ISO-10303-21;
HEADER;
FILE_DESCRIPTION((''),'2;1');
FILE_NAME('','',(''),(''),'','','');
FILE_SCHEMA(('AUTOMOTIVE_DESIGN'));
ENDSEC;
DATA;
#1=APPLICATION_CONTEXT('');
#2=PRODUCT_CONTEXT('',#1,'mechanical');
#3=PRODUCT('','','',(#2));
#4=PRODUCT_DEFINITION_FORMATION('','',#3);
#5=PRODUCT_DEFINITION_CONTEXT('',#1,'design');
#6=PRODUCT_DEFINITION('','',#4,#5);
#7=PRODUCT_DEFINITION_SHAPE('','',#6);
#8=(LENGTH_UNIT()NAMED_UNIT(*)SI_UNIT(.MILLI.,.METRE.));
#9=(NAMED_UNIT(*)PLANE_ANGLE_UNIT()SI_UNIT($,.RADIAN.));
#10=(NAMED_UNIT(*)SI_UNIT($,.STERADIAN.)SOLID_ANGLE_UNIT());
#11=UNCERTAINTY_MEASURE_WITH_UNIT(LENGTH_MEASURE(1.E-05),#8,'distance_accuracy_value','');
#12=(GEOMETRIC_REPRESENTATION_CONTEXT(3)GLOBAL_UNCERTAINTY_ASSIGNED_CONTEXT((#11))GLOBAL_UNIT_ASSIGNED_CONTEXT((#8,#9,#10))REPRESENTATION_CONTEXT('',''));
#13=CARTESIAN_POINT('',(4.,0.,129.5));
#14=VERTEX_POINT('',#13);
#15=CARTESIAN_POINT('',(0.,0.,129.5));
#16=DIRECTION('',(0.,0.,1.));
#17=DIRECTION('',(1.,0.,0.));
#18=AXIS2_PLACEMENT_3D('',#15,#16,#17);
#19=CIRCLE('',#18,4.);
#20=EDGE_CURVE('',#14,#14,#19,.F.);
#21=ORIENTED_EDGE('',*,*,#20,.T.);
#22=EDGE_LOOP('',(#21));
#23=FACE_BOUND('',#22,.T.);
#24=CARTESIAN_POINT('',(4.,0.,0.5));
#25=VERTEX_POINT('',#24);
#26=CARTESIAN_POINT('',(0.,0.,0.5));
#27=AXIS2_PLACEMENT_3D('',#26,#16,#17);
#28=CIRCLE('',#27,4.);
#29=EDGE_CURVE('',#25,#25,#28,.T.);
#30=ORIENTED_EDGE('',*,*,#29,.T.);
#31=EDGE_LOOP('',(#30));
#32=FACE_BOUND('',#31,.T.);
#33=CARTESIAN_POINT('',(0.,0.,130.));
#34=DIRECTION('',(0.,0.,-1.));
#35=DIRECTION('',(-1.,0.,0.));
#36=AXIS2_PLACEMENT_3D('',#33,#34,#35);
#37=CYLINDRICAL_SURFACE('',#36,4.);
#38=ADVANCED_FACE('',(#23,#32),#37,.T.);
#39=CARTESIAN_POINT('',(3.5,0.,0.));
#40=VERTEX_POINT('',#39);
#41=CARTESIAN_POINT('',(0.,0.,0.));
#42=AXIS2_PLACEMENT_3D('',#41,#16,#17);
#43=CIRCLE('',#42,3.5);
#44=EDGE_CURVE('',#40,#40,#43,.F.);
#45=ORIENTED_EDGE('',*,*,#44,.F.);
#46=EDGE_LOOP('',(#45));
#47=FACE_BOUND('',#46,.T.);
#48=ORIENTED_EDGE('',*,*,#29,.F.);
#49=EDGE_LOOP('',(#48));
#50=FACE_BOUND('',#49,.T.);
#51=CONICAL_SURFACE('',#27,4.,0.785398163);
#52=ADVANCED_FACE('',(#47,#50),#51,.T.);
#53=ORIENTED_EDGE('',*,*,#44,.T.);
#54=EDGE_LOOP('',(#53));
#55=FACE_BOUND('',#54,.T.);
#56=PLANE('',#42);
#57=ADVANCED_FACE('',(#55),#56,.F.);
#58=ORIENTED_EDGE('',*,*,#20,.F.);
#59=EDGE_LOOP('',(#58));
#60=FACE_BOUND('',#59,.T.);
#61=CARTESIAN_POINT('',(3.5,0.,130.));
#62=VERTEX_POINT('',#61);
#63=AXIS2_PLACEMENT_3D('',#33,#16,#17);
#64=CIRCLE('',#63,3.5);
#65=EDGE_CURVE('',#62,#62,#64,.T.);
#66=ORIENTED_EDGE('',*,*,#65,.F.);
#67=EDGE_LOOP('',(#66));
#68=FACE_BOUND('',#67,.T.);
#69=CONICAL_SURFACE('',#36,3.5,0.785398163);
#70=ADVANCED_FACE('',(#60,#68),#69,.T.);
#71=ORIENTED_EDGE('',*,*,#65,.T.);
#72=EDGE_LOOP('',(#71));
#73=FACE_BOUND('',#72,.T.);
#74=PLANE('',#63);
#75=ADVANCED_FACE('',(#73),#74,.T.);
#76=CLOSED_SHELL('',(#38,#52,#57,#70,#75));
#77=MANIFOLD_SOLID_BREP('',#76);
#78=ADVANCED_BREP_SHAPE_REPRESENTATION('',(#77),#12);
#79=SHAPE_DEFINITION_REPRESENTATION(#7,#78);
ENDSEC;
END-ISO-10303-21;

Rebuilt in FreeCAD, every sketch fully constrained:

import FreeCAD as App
import Part
import Sketcher


def edges_at(feature, points):
    """Names of the edges that pass closest to the given points."""
    edges = feature.Shape.Edges
    near = lambda p: min(range(len(edges)), key=lambda i: edges[i].distToShape(Part.Vertex(*p))[0])
    return sorted({f"Edge{near(p) + 1}" for p in points})

doc = App.newDocument("Part")
body = doc.addObject("PartDesign::Body", "Body")

sketch1 = body.newObject("Sketcher::SketchObject", "Sketch")
sketch1.AttachmentSupport = (doc.getObject("XY_Plane"), [""])
sketch1.MapMode = "FlatFace"
sketch1.addGeometry(Part.Circle(App.Vector(0, 0, 0), App.Vector(0, 0, 1), 4), False)
sketch1.addConstraint([
    Sketcher.Constraint("Coincident", 0, 3, -1, 1),
    Sketcher.Constraint("Diameter", 0, 8.0),
])
pad1 = body.newObject("PartDesign::Pad", "Pad")
pad1.Profile = sketch1
pad1.Length = 130
doc.recompute()

chamfer = body.newObject("PartDesign::Chamfer", "Chamfer")
chamfer.Base = (pad1, edges_at(pad1, [(-4, 0, 0), (-4, 0, 130)]))
chamfer.Size = 0.5

doc.recompute()
